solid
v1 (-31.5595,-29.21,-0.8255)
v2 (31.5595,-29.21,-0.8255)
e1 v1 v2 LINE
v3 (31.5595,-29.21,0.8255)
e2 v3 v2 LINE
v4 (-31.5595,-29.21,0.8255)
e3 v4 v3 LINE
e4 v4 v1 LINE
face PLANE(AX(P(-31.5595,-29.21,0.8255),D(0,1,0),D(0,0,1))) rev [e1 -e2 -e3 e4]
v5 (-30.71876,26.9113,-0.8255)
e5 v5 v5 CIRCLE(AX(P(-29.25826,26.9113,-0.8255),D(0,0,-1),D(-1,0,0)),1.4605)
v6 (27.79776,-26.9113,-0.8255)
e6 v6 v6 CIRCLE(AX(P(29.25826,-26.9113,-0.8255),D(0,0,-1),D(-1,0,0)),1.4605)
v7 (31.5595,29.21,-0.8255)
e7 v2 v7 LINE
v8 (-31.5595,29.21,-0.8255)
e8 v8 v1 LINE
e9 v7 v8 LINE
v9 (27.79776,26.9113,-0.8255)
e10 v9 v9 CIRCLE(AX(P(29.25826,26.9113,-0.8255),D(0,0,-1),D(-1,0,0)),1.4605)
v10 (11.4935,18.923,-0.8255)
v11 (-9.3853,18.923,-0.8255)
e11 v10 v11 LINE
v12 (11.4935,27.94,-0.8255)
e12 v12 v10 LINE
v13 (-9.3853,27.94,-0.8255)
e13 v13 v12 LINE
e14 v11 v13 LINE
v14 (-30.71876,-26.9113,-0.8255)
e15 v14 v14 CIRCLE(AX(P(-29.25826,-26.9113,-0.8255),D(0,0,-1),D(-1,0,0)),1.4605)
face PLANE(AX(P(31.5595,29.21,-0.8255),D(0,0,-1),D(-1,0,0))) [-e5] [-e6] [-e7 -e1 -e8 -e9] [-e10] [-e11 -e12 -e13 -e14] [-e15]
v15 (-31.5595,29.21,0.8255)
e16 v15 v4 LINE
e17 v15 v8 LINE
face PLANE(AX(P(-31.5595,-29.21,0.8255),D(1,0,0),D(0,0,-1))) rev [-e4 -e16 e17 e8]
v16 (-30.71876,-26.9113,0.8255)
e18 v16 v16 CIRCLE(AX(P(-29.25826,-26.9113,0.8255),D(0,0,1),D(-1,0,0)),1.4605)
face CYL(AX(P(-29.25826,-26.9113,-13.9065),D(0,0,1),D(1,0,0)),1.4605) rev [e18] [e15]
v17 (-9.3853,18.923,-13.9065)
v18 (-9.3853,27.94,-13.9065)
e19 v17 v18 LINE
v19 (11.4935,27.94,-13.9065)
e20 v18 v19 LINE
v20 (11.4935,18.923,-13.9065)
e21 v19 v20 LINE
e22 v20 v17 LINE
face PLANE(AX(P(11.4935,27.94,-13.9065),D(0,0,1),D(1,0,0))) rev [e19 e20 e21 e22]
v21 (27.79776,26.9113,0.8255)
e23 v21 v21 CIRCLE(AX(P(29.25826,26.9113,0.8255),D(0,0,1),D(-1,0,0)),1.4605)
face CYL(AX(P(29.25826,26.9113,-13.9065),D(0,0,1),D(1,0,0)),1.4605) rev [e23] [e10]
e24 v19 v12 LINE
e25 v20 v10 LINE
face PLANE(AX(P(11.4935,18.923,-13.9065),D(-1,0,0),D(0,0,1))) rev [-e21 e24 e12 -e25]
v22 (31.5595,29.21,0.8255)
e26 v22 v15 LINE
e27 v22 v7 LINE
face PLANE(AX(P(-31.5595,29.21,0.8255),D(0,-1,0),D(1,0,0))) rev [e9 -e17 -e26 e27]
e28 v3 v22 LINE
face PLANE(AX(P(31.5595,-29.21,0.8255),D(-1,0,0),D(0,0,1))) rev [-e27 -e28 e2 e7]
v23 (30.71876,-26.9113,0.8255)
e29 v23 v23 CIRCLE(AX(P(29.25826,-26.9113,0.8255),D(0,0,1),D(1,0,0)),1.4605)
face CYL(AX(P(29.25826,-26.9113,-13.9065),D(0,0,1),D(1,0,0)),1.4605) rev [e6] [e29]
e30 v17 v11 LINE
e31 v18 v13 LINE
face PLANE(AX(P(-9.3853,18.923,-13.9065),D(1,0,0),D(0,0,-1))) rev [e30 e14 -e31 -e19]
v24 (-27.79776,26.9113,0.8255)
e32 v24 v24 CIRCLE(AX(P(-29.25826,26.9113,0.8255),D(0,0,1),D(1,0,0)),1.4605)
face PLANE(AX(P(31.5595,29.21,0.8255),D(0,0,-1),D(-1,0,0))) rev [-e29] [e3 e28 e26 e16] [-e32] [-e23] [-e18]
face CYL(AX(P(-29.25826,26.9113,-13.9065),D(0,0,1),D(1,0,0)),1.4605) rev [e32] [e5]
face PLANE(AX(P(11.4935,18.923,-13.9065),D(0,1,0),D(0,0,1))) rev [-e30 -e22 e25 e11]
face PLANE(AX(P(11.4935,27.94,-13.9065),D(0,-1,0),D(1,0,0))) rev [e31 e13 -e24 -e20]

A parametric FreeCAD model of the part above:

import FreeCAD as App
import Part
import Sketcher

V = App.Vector
Q = App.Units.Quantity


def add_polygon(sketch, points):
    """Adds a closed chain of lines whose ends are joined by coincident constraints."""
    first, n = sketch.GeometryCount, len(points)
    for a, b in zip(points, points[1:] + points[:1]):
        sketch.addGeometry(Part.LineSegment(App.Vector(*a, 0), App.Vector(*b, 0)), False)
    for i in range(n):
        sketch.addConstraint(Sketcher.Constraint("Coincident", first + i, 2, first + (i + 1) % n, 1))

doc = App.newDocument("Part")
body = doc.addObject("PartDesign::Body", "Body")

# Sketch on XY plane
sketch1 = body.newObject("Sketcher::SketchObject", "Sketch")
sketch1.AttachmentSupport = (doc.getObject("XY_Plane"), [""])
sketch1.MapMode = "FlatFace"
add_polygon(sketch1, [(-32, 29), (-32, -29), (32, -29), (32, 29)])  # lines 0-3
sketch1.addConstraint([
    Sketcher.Constraint("Vertical", 0),
    Sketcher.Constraint("Horizontal", 1),
    Sketcher.Constraint("Vertical", 2),
    Sketcher.Constraint("Horizontal", 3),
    Sketcher.Constraint("Symmetric", 0, 2, 2, 2, -1, 1),
    Sketcher.Constraint("DistanceY", 0, 2, 0, 1, Q("2.3 in")),
    Sketcher.Constraint("DistanceX", 1, 1, 1, 2, Q("2.485 in")),
])
pad1 = body.newObject("PartDesign::Pad", "Pad")
pad1.Profile = sketch1
pad1.Length = Q("0.065 in")
pad1.Midplane = True

# Sketch on XY plane
sketch2 = body.newObject("Sketcher::SketchObject", "Sketch001")
sketch2.AttachmentSupport = (doc.getObject("XY_Plane"), [""])
sketch2.MapMode = "FlatFace"
sketch2.AttachmentOffset = App.Placement(V(0, 0, -0.0325 * 25.4), App.Rotation())
add_polygon(sketch2, [(11, 28), (11, 19), (-9, 19), (-9, 28)])  # lines 0-3
sketch2.addConstraint([
    Sketcher.Constraint("Vertical", 0),
    Sketcher.Constraint("Horizontal", 1),
    Sketcher.Constraint("Vertical", 2),
    Sketcher.Constraint("Horizontal", 3),
    Sketcher.Constraint("DistanceY", -1, 1, 2, 2, Q("1.1 in")),
    Sketcher.Constraint("DistanceX", 1, 2, 1, 1, Q("0.822 in")),
    Sketcher.Constraint("DistanceY", 0, 2, 0, 1, Q("0.355 in")),
    Sketcher.Constraint("DistanceX", -1, 1, 0, 2, Q("0.4525 in")),
])
pad2 = body.newObject("PartDesign::Pad", "Pad001")
pad2.Profile = sketch2
pad2.Length = Q("0.515 in")
pad2.Reversed = True

# Sketch on XY plane
sketch3 = body.newObject("Sketcher::SketchObject", "Sketch002")
sketch3.AttachmentSupport = (doc.getObject("XY_Plane"), [""])
sketch3.MapMode = "FlatFace"
sketch3.AttachmentOffset = App.Placement(V(0, 0, 0.0325 * 25.4), App.Rotation())
sketch3.addGeometry([
    Part.Circle(V(-29.3, 26.9, 0), V(0, 0, 1), 1.5),
    Part.Circle(V(29.3, 26.9, 0), V(0, 0, 1), 1.5),
    Part.Circle(V(29.3, -26.9, 0), V(0, 0, 1), 1.5),
    Part.Circle(V(-29.3, -26.9, 0), V(0, 0, 1), 1.5),
], False)
sketch3.addConstraint([
    Sketcher.Constraint("Equal", 0, 1),
    Sketcher.Constraint("Equal", 1, 2),
    Sketcher.Constraint("Equal", 2, 3),
    Sketcher.Constraint("Symmetric", 0, 3, 2, 3, -1, 1),
    Sketcher.Constraint("Symmetric", 1, 3, 3, 3, -1, 1),
    Sketcher.Constraint("Symmetric", 0, 3, 1, 3, -2),
    Sketcher.Constraint("Diameter", 0, Q("0.115 in")),
    Sketcher.Constraint("DistanceY", 2, 3, 1, 3, Q("2.119 in")),
    Sketcher.Constraint("DistanceX", 0, 3, -1, 1, Q("1.1519 in")),
])
pocket1 = body.newObject("PartDesign::Pocket", "Pocket")
pocket1.Profile = sketch3
pocket1.Type = "ThroughAll"

doc.recompute()
